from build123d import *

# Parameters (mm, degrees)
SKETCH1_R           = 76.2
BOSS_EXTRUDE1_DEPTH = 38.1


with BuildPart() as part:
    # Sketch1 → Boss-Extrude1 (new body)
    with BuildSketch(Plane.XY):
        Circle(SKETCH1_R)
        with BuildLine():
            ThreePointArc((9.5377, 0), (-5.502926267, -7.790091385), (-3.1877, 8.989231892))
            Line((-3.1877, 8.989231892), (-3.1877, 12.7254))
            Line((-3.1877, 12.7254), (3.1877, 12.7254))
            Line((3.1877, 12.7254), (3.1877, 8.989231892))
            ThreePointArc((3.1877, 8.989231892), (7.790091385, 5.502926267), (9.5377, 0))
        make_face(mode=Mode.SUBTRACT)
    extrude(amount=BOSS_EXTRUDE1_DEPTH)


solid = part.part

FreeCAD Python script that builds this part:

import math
import FreeCAD as App
import Part
import Sketcher
Q = App.Units.Quantity

doc = App.newDocument("Part")
body = doc.addObject("PartDesign::Body", "Body")

# Sketch on XY plane
sketch1 = doc.addObject("Sketcher::SketchObject", "Sketch")
body.addObject(sketch1)
sketch1.AttachmentSupport = (doc.XY_Plane, [""])
sketch1.MapMode = "FlatFace"
sketch1.addGeometry([
    Part.Circle(App.Vector(0, 0, 0), App.Vector(0, 0, 1), 76.2),  # 0
    Part.ArcOfCircle(Part.Circle(App.Vector(0, 0, 0), App.Vector(0, 0, 1), 9.5377), math.radians(0), math.radians(70.474823)),  # 1
    Part.ArcOfCircle(Part.Circle(App.Vector(0, 0, 0), App.Vector(0, 0, 1), 9.5377), math.radians(109.525177), math.radians(360)),  # 2
    Part.LineSegment(App.Vector(-3.1877, 8.989232, 0), App.Vector(-3.1877, 12.7254, 0)),  # 3
    Part.LineSegment(App.Vector(-3.1877, 12.7254, 0), App.Vector(3.1877, 12.7254, 0)),  # 4
    Part.LineSegment(App.Vector(3.1877, 12.7254, 0), App.Vector(3.1877, 8.989232, 0)),  # 5
], False)
sketch1.addConstraint([
    Sketcher.Constraint("Tangent", 1, 1, 2, 2),
    Sketcher.Constraint("Coincident", 2, 1, 3, 1),
    Sketcher.Constraint("Coincident", 3, 2, 4, 1),
    Sketcher.Constraint("Coincident", 4, 2, 5, 1),
    Sketcher.Constraint("Coincident", 5, 2, 1, 2),
    Sketcher.Constraint("Vertical", 3),
    Sketcher.Constraint("Horizontal", 4),
    Sketcher.Constraint("Vertical", 5),
    Sketcher.Constraint("Coincident", 0, 3, -1, 1),
    Sketcher.Constraint("Coincident", 1, 3, -1, 1),
    Sketcher.Constraint("Equal", 1, 2),
    Sketcher.Constraint("PointOnObject", 1, 1, -1),
    Sketcher.Constraint("Horizontal", 2, 1, 5, 2),
    Sketcher.Constraint("Diameter", 0, Q("6 in")),
    Sketcher.Constraint("Radius", 1, Q("0.3755 in")),
    Sketcher.Constraint("DistanceX", 4, 1, 4, 2, Q("0.251 in")),
    Sketcher.Constraint("DistanceY", -1, 1, 3, 2, Q("0.501 in")),
])
pad1 = doc.addObject("PartDesign::Pad", "Pad")
body.addObject(pad1)
pad1.Profile = sketch1
pad1.Length = Q("1.5 in")

doc.recompute()
